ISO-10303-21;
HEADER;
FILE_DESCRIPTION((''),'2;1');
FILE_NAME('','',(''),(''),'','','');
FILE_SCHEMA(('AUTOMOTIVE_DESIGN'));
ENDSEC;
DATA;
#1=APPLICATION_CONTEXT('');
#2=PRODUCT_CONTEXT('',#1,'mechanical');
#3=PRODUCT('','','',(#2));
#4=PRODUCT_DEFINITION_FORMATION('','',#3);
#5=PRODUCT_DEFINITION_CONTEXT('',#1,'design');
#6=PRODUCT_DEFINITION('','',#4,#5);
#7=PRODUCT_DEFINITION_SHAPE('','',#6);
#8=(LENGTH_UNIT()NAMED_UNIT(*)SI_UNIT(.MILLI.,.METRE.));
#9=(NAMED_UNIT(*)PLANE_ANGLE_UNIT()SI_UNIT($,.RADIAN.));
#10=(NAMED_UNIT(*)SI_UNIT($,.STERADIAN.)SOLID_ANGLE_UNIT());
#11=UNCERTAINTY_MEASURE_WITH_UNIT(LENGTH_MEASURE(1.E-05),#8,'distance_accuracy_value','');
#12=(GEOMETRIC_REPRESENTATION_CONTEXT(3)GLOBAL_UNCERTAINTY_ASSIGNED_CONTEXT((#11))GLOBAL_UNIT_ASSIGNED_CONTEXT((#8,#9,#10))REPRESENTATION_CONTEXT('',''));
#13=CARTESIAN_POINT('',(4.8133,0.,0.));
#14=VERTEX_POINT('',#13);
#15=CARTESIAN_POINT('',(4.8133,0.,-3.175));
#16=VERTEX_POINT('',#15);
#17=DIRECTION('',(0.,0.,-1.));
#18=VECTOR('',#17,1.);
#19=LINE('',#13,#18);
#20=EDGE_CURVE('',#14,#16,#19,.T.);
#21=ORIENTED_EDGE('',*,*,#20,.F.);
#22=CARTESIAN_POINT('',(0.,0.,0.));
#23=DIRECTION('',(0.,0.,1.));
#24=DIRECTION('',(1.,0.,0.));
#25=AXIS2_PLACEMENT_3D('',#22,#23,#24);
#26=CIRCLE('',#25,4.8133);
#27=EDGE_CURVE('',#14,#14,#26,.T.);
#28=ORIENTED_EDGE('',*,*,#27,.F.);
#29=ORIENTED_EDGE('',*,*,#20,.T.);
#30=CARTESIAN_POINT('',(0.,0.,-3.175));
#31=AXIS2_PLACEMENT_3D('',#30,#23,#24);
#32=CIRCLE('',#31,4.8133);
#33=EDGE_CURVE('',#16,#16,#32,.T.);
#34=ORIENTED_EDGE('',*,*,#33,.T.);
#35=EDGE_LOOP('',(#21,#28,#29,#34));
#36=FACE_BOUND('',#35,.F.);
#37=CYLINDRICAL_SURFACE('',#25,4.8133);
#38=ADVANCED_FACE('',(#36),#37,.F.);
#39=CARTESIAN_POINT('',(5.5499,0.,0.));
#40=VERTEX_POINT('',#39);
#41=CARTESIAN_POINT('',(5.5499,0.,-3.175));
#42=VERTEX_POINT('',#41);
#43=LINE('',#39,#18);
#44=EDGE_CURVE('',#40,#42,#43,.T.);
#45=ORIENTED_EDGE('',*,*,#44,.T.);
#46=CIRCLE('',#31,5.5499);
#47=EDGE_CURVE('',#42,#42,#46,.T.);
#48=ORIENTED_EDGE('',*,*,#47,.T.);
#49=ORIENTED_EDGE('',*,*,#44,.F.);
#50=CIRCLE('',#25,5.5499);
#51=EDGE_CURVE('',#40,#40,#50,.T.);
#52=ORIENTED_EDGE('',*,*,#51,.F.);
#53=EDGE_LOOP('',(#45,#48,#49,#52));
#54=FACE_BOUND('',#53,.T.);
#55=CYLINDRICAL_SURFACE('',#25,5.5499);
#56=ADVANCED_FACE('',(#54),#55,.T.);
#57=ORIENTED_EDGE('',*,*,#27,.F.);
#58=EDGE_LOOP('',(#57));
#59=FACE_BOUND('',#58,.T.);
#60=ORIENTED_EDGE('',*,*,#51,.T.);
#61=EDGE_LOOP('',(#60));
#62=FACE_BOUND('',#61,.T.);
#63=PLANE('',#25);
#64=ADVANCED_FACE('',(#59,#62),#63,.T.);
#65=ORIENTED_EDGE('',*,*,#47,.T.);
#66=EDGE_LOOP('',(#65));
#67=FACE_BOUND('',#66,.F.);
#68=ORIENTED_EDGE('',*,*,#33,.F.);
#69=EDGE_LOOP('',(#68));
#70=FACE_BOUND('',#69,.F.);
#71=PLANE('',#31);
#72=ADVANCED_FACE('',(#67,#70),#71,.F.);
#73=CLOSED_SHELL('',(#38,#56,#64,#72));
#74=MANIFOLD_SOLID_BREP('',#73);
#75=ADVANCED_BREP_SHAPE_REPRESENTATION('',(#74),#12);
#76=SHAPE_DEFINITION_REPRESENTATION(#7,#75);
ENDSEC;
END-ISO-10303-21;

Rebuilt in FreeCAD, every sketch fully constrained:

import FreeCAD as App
import Part
import Sketcher
from FreeCAD import Vector
Q = App.Units.Quantity

doc = App.newDocument("Part")
params = doc.addObject("Spreadsheet::Sheet", "Params")
for row, (alias, value) in enumerate([
    ("sketch1_diameter", "0.437 in"),
    ("sketch1_diameter2", "0.379 in"),
    ("pad1_length", "0.125 in"),
], start=1):
    params.set(f"A{row}", alias)
    params.set(f"B{row}", "=" + value)
    params.setAlias(f"B{row}", alias)

body = doc.addObject("PartDesign::Body", "Body")

# Sketch on XY plane
sketch1 = body.newObject("Sketcher::SketchObject", "Sketch")
sketch1.AttachmentSupport = (doc.getObject("XY_Plane"), [""])
sketch1.MapMode = "FlatFace"
sketch1.addGeometry([
    Part.Circle(Vector(0, 0, 0), Vector(0, 0, 1), 5.5),
    Part.Circle(Vector(0, 0, 0), Vector(0, 0, 1), 4.8),
], False)
sketch1.addConstraint([
    Sketcher.Constraint("Coincident", 0, 3, -1, 1),
    Sketcher.Constraint("Coincident", 1, 3, -1, 1),
    Sketcher.Constraint("Diameter", 0, Q("0.437 in")),
    Sketcher.Constraint("Diameter", 1, Q("0.379 in")),
])
sketch1.setExpression("Constraints[2]", "Params.sketch1_diameter")
sketch1.setExpression("Constraints[3]", "Params.sketch1_diameter2")
pad1 = body.newObject("PartDesign::Pad", "Pad")
pad1.Profile = sketch1
pad1.setExpression("Length", "Params.pad1_length")
pad1.Reversed = True

doc.recompute()
